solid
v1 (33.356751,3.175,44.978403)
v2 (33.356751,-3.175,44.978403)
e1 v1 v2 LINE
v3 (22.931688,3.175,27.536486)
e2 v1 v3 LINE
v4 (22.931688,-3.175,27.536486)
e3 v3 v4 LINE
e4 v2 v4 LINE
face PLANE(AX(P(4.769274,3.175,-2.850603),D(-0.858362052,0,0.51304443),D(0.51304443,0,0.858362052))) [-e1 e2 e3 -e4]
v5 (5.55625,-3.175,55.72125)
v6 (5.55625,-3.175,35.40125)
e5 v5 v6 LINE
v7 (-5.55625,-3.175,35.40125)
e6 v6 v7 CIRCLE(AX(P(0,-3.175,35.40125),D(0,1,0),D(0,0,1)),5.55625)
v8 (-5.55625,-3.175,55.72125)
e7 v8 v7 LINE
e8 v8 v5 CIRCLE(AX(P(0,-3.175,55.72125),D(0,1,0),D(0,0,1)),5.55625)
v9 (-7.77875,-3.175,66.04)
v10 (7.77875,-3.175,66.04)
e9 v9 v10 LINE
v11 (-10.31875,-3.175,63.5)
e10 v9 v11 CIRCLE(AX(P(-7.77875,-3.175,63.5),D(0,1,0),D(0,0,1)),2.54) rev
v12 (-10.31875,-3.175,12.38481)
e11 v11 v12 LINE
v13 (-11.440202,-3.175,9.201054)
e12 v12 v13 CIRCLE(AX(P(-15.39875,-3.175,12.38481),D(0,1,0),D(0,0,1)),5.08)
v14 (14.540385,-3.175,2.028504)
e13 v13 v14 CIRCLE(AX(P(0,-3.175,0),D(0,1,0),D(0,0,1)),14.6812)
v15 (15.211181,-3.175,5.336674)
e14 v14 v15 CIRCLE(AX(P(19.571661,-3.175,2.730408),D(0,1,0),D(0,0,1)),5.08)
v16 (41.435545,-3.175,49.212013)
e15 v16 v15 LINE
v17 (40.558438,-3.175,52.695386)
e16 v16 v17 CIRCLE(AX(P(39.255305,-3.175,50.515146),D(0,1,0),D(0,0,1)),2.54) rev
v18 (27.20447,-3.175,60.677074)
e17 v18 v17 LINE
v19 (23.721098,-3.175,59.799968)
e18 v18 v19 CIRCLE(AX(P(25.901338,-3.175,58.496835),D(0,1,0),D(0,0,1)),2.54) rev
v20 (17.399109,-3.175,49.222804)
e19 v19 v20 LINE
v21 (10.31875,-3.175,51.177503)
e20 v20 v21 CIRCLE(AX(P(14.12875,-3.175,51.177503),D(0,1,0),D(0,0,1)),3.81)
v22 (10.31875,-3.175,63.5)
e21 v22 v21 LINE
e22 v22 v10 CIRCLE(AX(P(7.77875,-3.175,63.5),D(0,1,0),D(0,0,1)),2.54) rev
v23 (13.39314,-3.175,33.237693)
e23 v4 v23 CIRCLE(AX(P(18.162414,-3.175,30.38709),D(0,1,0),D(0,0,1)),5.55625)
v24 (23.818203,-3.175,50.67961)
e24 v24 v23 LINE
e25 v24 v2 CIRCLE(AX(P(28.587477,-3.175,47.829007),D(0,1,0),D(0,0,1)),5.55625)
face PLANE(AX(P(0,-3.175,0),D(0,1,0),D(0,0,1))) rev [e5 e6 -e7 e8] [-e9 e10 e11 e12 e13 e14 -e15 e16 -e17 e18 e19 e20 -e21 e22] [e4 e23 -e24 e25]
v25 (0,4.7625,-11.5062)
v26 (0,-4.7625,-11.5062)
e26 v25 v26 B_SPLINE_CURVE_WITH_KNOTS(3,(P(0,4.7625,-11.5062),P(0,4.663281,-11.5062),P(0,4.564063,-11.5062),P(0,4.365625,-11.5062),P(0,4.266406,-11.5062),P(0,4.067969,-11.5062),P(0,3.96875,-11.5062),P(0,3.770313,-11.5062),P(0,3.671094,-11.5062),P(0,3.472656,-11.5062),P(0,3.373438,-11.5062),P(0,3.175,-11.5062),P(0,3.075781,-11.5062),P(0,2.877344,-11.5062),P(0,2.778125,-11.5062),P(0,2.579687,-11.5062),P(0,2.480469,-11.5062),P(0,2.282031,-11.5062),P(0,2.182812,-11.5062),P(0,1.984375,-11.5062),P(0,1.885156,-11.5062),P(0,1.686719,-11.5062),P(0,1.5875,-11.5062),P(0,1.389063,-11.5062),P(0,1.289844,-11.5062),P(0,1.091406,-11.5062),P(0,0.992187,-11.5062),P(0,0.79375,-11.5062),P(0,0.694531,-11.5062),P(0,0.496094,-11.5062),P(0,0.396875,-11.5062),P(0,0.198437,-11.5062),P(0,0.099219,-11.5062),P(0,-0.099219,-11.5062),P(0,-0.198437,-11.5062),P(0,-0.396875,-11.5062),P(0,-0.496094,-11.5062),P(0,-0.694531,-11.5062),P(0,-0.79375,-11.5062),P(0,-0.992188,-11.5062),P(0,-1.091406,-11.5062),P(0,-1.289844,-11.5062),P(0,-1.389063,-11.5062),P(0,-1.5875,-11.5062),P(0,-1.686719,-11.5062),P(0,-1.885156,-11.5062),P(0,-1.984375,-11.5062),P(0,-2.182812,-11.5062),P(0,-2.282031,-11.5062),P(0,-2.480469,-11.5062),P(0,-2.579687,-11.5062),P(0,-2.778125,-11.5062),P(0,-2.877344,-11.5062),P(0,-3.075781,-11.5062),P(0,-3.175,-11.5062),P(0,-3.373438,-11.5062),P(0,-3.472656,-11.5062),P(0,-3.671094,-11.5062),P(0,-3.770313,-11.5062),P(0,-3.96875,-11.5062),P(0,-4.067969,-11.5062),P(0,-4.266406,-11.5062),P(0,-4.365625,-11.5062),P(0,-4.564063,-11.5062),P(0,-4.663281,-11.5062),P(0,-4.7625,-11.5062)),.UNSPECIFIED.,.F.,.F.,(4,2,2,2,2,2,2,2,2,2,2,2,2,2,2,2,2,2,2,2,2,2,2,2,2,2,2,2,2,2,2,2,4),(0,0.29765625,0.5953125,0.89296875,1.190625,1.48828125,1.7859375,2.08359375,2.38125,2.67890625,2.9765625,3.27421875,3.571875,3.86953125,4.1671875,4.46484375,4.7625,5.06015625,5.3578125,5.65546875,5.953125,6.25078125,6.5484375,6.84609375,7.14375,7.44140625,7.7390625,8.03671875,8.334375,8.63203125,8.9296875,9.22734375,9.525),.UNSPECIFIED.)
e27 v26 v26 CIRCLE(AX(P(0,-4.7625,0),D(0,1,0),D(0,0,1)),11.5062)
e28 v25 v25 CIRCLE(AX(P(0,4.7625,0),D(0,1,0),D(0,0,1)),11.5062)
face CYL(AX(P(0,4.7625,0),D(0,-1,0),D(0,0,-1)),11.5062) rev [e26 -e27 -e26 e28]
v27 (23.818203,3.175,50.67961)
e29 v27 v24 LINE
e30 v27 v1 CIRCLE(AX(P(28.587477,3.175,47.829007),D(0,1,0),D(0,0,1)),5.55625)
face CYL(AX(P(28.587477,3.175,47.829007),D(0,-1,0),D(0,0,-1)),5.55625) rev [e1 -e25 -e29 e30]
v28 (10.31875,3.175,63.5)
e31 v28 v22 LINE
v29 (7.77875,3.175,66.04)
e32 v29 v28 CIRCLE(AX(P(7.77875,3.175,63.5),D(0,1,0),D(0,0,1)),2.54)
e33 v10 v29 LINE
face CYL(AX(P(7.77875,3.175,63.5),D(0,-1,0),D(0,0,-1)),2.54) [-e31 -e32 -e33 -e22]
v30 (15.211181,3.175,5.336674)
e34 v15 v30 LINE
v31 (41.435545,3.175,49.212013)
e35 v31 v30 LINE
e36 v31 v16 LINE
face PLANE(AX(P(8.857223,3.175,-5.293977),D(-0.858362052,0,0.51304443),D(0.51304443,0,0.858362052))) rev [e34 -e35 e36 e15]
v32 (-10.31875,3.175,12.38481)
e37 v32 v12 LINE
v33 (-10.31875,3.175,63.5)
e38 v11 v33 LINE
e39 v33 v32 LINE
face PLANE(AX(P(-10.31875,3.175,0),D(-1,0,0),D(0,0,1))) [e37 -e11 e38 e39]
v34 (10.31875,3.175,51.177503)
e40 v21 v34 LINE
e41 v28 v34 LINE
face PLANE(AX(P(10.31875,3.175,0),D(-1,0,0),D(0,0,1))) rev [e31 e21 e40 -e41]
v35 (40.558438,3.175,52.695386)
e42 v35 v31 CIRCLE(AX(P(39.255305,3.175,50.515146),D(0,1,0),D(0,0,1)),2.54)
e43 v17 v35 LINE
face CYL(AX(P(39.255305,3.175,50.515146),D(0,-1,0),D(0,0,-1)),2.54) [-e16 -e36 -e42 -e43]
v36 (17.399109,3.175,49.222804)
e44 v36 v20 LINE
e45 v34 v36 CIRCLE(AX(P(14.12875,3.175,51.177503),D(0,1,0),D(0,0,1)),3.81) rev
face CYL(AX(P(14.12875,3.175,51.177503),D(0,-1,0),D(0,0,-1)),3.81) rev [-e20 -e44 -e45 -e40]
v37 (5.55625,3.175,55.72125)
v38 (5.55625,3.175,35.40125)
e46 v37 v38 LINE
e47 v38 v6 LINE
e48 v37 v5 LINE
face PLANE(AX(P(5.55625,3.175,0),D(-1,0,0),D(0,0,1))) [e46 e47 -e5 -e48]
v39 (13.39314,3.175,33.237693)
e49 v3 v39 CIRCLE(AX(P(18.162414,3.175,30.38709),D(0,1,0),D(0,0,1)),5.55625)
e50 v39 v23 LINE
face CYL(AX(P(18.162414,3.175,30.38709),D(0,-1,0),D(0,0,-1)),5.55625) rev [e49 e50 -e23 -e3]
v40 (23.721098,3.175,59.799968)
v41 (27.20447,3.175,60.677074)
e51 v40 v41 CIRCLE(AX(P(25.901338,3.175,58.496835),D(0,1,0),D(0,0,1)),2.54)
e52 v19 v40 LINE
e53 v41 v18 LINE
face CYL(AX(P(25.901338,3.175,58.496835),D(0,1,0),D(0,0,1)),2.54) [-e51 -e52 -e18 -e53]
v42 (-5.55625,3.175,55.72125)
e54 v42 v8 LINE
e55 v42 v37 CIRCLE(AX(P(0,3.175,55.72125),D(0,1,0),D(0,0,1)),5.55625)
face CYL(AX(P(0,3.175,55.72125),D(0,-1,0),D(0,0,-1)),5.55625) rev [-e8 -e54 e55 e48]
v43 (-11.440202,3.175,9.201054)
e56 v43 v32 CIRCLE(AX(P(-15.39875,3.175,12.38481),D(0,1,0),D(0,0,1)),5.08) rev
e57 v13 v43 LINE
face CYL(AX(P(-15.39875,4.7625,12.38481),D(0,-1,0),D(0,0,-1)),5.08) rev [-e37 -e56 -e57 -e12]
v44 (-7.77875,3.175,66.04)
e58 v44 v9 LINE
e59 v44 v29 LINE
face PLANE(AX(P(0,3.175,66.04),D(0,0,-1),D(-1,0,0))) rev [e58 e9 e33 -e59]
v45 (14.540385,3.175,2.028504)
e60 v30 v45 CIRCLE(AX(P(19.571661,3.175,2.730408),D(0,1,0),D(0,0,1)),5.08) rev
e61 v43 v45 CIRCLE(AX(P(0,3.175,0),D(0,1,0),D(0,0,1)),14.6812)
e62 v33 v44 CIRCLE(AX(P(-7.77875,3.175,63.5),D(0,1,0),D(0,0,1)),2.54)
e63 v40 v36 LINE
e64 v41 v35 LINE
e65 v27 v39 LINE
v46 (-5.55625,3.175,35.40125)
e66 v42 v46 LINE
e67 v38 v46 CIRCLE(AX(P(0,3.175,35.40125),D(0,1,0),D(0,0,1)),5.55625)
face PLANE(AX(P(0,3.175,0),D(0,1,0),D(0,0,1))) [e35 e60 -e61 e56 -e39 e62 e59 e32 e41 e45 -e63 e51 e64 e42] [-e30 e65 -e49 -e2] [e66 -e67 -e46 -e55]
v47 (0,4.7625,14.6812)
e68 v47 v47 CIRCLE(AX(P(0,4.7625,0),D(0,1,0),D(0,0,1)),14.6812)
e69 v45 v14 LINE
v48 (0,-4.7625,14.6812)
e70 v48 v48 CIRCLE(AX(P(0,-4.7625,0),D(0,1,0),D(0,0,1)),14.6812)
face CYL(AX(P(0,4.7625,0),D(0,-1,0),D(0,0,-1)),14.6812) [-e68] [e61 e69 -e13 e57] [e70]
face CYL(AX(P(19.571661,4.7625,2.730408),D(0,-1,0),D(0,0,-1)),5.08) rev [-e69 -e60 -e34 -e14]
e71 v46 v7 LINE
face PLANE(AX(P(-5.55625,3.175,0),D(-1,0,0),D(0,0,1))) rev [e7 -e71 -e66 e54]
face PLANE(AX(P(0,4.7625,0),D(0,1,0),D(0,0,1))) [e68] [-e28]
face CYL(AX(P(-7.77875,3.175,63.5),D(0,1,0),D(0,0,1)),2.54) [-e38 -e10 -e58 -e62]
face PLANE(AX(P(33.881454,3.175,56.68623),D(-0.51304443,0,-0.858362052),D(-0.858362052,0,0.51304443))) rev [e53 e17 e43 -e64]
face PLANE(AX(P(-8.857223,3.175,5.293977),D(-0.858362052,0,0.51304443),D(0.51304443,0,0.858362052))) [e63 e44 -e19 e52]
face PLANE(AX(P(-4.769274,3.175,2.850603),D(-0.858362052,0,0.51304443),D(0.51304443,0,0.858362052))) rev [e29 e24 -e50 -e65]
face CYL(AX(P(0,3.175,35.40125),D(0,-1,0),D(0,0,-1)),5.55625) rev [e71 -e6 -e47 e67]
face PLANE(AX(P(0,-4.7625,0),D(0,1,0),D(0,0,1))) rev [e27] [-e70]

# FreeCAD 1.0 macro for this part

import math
import FreeCAD as App
import Part
import Sketcher

V = App.Vector
Q = App.Units.Quantity


def edges_at(feature, points):
    """Names of the edges that pass closest to the given points."""
    edges = feature.Shape.Edges
    near = lambda p: min(range(len(edges)), key=lambda i: edges[i].distToShape(Part.Vertex(*p))[0])
    return sorted({f"Edge{near(p) + 1}" for p in points})

doc = App.newDocument("Part")
body = doc.addObject("PartDesign::Body", "Body")

sketch1 = doc.addObject("Sketcher::SketchObject", "Sketch")
body.addObject(sketch1)
sketch1.AttachmentSupport = (doc.XZ_Plane, [""])
sketch1.MapMode = "FlatFace"
sketch1.addGeometry([
    Part.Circle(V(0, 0, 0), V(0, 0, 1), 15),
    Part.Circle(V(0, 0, 0), V(0, 0, 1), 12),
], False)
sketch1.addConstraint([
    Sketcher.Constraint("Coincident", 0, 3, -1, 1),
    Sketcher.Constraint("Coincident", 1, 3, -1, 1),
    Sketcher.Constraint("Diameter", 0, Q("1.156 in")),
    Sketcher.Constraint("Diameter", 1, Q("0.906 in")),
])
pad1 = doc.addObject("PartDesign::Pad", "Pad")
body.addObject(pad1)
pad1.Profile = sketch1
pad1.Length = Q("0.375 in")
pad1.Midplane = True

sketch2 = doc.addObject("Sketcher::SketchObject", "Sketch001")
body.addObject(sketch2)
sketch2.AttachmentSupport = (doc.XZ_Plane, [""])
sketch2.MapMode = "FlatFace"
sketch2.addGeometry([
    Part.LineSegment(V(-10, 10, 0), V(-10, 66, 0)),
    Part.LineSegment(V(-10, 66, 0), V(10, 66, 0)),
    Part.LineSegment(V(10, 66, 0), V(10, 37, 0)),
    Part.LineSegment(V(10, 37, 0), V(25, 62, 0)),
    Part.LineSegment(V(25, 62, 0), V(43, 51, 0)),
    Part.LineSegment(V(43, 51, 0), V(14, 4, 0)),
    Part.ArcOfCircle(Part.Circle(V(0, 0, 0), V(0, 0, 1), 15), math.radians(14), math.radians(135)),
    Part.LineSegment(V(6, 35, 0), V(6, 56, 0)),
    Part.ArcOfCircle(Part.Circle(V(0, 56, 0), V(0, 0, 1), 6), math.radians(0), math.radians(180)),
    Part.LineSegment(V(-6, 56, 0), V(-6, 35, 0)),
    Part.ArcOfCircle(Part.Circle(V(0, 35, 0), V(0, 0, 1), 6), math.radians(180), math.radians(360)),
    Part.LineSegment(V(23, 28, 0), V(33, 45, 0)),
    Part.ArcOfCircle(Part.Circle(V(29, 48, 0), V(0, 0, 1), 6), math.radians(-31), math.radians(149)),
    Part.LineSegment(V(24, 51, 0), V(13, 33, 0)),
    Part.ArcOfCircle(Part.Circle(V(18, 30, 0), V(0, 0, 1), 6), math.radians(149), math.radians(329)),
], False)
sketch2.addConstraint([
    Sketcher.Constraint("Coincident", 0, 2, 1, 1),
    Sketcher.Constraint("Coincident", 1, 2, 2, 1),
    Sketcher.Constraint("Coincident", 2, 2, 3, 1),
    Sketcher.Constraint("Coincident", 3, 2, 4, 1),
    Sketcher.Constraint("Coincident", 4, 2, 5, 1),
    Sketcher.Constraint("Coincident", 5, 2, 6, 1),
    Sketcher.Constraint("Coincident", 6, 2, 0, 1),
    Sketcher.Constraint("Tangent", 7, 2, 8, 1),
    Sketcher.Constraint("Tangent", 8, 2, 9, 1),
    Sketcher.Constraint("Tangent", 9, 2, 10, 1),
    Sketcher.Constraint("Tangent", 10, 2, 7, 1),
    Sketcher.Constraint("Tangent", 11, 2, 12, 1),
    Sketcher.Constraint("Tangent", 12, 2, 13, 1),
    Sketcher.Constraint("Tangent", 13, 2, 14, 1),
    Sketcher.Constraint("Tangent", 14, 2, 11, 1),
    Sketcher.Constraint("Vertical", 0),
    Sketcher.Constraint("Horizontal", 1),
    Sketcher.Constraint("Vertical", 2),
    Sketcher.Constraint("Vertical", 7),
    Sketcher.Constraint("Vertical", 9),
    Sketcher.Constraint("Coincident", 6, 3, -1, 1),
    Sketcher.Constraint("Equal", 10, 12),
    Sketcher.Constraint("Equal", 12, 14),
    Sketcher.Constraint("PointOnObject", 8, 3, -2),
    Sketcher.Constraint("Perpendicular", 3, 4),
    Sketcher.Constraint("Perpendicular", 4, 5),
    Sketcher.Constraint("Parallel", 5, 11),
    Sketcher.Constraint("DistanceY", 7, 1, 7, 2, Q("0.8 in")),
    Sketcher.Constraint("Radius", 6, Q("0.578 in")),
    Sketcher.Constraint("Radius", 8, Q("0.21875 in")),
    Sketcher.Constraint("Distance", 11, Q("0.8 in")),
    Sketcher.Constraint("DistanceY", -1, 1, 0, 2, Q("2.6 in")),
    Sketcher.Constraint("DistanceX", 1, 1, 1, 2, Q("0.8125 in")),
    Sketcher.Constraint("Distance", 4, Q("0.8125 in")),
    Sketcher.Constraint("DistanceX", 0, 2, -1, 1, Q("0.40625 in")),
    Sketcher.Constraint("DistanceY", 8, 3, 0, 2, Q("0.40625 in")),
    Sketcher.Constraint("DistanceY", 2, 2, 2, 1, 28.663172),
    Sketcher.Constraint("DistanceY", 12, 3, 3, 2, 14.151201),
    Sketcher.Constraint("DistanceX", 12, 3, 4, 2, 14.151201),
    Sketcher.Constraint("DistanceX", 2, 2, 11, 2, 23.038001),
    Sketcher.Constraint("Distance", 3, 28.663172),
])
pad2 = doc.addObject("PartDesign::Pad", "Pad001")
body.addObject(pad2)
pad2.Profile = sketch2
pad2.Length = Q("0.25 in")
pad2.Midplane = True
doc.recompute()

fillet = doc.addObject("PartDesign::Fillet", "Fillet")
body.addObject(fillet)
fillet.Base = (pad2, edges_at(pad2, [(14.215, 0, 3.67), (-10.319, 0, 10.443)]))
fillet.Radius = Q("0.2 in")
doc.recompute()

fillet2 = doc.addObject("PartDesign::Fillet", "Fillet001")
body.addObject(fillet2)
fillet2.Base = (fillet, edges_at(fillet, [
    (-10.319, 0, 66.04),
    (10.319, 0, 66.04),
    (25.024, 0, 61.98),
    (42.739, 0, 51.392),
]))
fillet2.Radius = Q("0.1 in")
doc.recompute()

fillet3 = doc.addObject("PartDesign::Fillet", "Fillet002")
body.addObject(fillet3)
fillet3.Base = (fillet2, edges_at(fillet2, [(10.319, 0, 37.377)]))
fillet3.Radius = Q("0.15 in")

doc.recompute()
